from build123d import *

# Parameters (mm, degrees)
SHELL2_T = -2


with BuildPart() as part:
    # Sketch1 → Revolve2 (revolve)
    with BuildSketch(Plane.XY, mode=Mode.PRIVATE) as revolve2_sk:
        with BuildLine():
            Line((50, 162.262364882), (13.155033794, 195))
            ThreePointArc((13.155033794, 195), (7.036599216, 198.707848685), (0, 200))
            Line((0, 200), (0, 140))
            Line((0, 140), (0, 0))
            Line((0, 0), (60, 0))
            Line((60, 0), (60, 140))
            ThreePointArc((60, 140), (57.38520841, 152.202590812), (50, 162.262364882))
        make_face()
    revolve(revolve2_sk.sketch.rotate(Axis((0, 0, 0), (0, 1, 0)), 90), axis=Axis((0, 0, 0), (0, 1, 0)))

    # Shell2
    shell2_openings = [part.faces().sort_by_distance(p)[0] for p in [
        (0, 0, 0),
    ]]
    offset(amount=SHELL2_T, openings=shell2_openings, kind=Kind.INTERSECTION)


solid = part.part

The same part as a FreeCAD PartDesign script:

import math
import FreeCAD as App
import Part
import Sketcher

V = App.Vector
Q = App.Units.Quantity


def faces_at(feature, points):
    """Names of the faces that lie closest to the given points."""
    faces = feature.Shape.Faces
    near = lambda p: min(range(len(faces)), key=lambda i: faces[i].distToShape(Part.Vertex(*p))[0])
    return sorted({f"Face{near(p) + 1}" for p in points})

doc = App.newDocument("Part")
body = doc.addObject("PartDesign::Body", "Body")

# Sketch on XY plane
sketch1 = doc.addObject("Sketcher::SketchObject", "Sketch")
body.addObject(sketch1)
sketch1.AttachmentSupport = (doc.XY_Plane, [""])
sketch1.MapMode = "FlatFace"
sketch1.addGeometry(Part.LineSegment(V(50, 162.262365, 0), V(13.155034, 195, 0)), False)
sketch1.addGeometry(Part.ArcOfCircle(Part.Circle(V(0, 180.194509, 0), V(0, 0, 1), 19.805491), math.radians(48.378143), math.radians(90)), False)
sketch1.addGeometry(Part.LineSegment(V(0, 200, 0), V(0, 0, 0)), False)
sketch1.addGeometry(Part.LineSegment(V(0, 0, 0), V(60, 0, 0)), False)
sketch1.addGeometry(Part.LineSegment(V(60, 0, 0), V(60, 140, 0)), False)
sketch1.addGeometry(Part.ArcOfCircle(Part.Circle(V(30.219355, 140, 0), V(0, 0, 1), 29.780645), math.radians(0), math.radians(48.378143)), False)
sketch1.addConstraint(Sketcher.Constraint("Tangent", 0, 2, 1, 1))
sketch1.addConstraint(Sketcher.Constraint("Coincident", 1, 2, 2, 1))
sketch1.addConstraint(Sketcher.Constraint("Coincident", 2, 2, 3, 1))
sketch1.addConstraint(Sketcher.Constraint("Coincident", 3, 2, 4, 1))
sketch1.addConstraint(Sketcher.Constraint("Tangent", 4, 2, 5, 1))
sketch1.addConstraint(Sketcher.Constraint("Tangent", 5, 2, 0, 1))
sketch1.addConstraint(Sketcher.Constraint("Vertical", 2))
sketch1.addConstraint(Sketcher.Constraint("Horizontal", 3))
sketch1.addConstraint(Sketcher.Constraint("Vertical", 4))
sketch1.addConstraint(Sketcher.Constraint("Coincident", 2, 2, -1, 1))
sketch1.addConstraint(Sketcher.Constraint("PointOnObject", 1, 3, -2))
sketch1.addConstraint(Sketcher.Constraint("DistanceX", 3, 1, 3, 2, Q("60 mm")))
sketch1.addConstraint(Sketcher.Constraint("DistanceY", 2, 2, 2, 1, Q("200 mm")))
sketch1.addConstraint(Sketcher.Constraint("DistanceY", 4, 1, 4, 2, Q("140 mm")))
sketch1.addConstraint(Sketcher.Constraint("DistanceY", -1, 1, 0, 2, Q("195 mm")))
sketch1.addConstraint(Sketcher.Constraint("DistanceX", -1, 1, 5, 2, Q("50 mm")))
revolution = doc.addObject("PartDesign::Revolution", "Revolution")
body.addObject(revolution)
revolution.Profile = sketch1
revolution.ReferenceAxis = (sketch1, ["V_Axis"])
revolution.Angle = 360
doc.recompute()

thickness = doc.addObject("PartDesign::Thickness", "Thickness")
body.addObject(thickness)
thickness.Base = (revolution, faces_at(revolution, [(0, 0, 0)]))
thickness.Value = 2
thickness.Reversed = True
thickness.Join = "Intersection"

doc.recompute()
